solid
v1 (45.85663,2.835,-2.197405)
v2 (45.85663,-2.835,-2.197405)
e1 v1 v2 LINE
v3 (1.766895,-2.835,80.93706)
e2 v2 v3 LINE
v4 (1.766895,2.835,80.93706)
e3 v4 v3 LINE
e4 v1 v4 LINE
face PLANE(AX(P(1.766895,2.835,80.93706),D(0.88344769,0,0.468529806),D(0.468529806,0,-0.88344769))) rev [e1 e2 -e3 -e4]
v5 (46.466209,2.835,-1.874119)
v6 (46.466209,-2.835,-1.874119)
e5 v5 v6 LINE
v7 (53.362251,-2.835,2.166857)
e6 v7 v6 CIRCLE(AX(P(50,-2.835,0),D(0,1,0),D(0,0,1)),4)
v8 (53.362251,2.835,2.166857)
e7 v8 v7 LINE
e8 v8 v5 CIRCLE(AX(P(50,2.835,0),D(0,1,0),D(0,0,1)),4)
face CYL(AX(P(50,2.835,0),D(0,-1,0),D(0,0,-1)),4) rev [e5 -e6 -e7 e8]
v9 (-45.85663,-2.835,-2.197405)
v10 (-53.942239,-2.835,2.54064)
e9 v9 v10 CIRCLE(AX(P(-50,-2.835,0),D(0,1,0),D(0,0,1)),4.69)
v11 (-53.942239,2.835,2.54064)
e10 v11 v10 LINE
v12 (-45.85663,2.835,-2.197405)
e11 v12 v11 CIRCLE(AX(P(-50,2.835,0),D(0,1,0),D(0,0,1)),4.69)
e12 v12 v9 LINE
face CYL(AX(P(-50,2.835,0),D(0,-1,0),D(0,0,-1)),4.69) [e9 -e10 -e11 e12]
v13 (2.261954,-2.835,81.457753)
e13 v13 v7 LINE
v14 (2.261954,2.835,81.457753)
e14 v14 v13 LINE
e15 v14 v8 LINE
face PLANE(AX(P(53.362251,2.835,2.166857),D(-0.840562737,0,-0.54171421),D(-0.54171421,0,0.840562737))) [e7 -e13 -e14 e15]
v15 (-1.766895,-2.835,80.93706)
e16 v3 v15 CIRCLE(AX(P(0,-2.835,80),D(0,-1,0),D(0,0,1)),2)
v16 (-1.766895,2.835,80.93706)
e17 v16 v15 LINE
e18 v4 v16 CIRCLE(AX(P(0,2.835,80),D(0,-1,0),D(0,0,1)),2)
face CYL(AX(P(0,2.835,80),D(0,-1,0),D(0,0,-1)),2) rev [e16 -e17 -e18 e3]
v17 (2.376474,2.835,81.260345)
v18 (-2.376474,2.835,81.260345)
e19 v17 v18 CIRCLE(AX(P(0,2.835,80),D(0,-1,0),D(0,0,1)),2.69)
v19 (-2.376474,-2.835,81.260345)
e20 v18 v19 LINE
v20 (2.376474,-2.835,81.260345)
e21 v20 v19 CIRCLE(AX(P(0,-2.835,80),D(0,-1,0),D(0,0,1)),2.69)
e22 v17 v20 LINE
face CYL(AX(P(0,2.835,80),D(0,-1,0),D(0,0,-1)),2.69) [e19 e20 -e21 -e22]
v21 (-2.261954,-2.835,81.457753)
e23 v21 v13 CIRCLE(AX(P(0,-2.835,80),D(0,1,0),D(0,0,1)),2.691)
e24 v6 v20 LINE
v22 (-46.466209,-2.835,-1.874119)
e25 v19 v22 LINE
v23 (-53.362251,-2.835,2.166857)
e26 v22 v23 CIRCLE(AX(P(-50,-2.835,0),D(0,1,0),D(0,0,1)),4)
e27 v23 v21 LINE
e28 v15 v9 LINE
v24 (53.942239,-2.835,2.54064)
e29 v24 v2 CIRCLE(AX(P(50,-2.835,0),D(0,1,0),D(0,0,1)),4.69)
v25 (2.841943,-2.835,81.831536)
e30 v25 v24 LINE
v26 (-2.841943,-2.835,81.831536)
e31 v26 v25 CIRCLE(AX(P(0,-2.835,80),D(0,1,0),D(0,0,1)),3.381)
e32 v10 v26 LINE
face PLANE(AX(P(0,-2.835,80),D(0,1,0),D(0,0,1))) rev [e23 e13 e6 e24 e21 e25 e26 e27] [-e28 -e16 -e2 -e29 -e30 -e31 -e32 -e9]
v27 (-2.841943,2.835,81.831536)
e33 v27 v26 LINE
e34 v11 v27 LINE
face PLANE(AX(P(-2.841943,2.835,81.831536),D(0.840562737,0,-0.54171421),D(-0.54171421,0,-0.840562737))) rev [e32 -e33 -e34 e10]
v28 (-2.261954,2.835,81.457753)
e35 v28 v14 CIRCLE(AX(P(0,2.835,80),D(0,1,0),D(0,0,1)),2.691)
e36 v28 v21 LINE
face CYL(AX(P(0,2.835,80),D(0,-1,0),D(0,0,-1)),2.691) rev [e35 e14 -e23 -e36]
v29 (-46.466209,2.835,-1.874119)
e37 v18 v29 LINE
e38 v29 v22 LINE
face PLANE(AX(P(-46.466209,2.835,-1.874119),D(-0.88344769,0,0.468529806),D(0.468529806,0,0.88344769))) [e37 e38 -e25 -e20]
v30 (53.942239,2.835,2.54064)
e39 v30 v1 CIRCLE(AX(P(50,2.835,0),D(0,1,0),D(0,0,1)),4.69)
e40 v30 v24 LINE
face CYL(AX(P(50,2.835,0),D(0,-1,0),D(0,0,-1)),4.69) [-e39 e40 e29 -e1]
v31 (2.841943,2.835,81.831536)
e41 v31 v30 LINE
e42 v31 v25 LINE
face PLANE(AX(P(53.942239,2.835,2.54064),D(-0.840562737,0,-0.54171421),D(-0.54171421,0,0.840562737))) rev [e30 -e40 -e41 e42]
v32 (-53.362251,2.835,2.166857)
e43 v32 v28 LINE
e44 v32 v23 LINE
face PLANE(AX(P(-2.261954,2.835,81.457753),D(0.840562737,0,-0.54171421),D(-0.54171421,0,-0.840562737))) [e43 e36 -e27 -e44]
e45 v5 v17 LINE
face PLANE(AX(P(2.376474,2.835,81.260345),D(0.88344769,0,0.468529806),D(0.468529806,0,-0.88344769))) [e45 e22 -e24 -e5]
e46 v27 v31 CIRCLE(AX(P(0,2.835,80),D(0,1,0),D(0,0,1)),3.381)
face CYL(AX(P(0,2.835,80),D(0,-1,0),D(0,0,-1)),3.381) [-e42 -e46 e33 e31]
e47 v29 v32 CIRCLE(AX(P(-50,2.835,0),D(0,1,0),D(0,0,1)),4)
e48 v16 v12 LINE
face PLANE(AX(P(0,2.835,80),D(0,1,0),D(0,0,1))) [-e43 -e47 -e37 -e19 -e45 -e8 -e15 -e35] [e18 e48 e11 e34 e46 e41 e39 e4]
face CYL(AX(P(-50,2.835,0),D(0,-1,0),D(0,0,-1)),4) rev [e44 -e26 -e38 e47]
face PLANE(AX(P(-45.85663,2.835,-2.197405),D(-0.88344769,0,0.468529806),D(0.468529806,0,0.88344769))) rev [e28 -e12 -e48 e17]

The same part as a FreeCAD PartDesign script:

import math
import FreeCAD as App
import Part
import Sketcher

V = App.Vector
Q = App.Units.Quantity

doc = App.newDocument("Part")
params = doc.addObject("Spreadsheet::Sheet", "Params")
for row, (alias, value) in enumerate([
    ("sketch1_radius", "2 mm"),
    ("sketch1_radius2", "4 mm"),
    ("sketch1_radius3", "4.69 mm"),
    ("pad1_length", "5.67 mm"),
], start=1):
    params.set(f"A{row}", alias)
    params.set(f"B{row}", "=" + value)
    params.setAlias(f"B{row}", alias)

body = doc.addObject("PartDesign::Body", "Body")

# Sketch on XZ plane
sketch1 = body.newObject("Sketcher::SketchObject", "Sketch")
sketch1.AttachmentSupport = (doc.getObject("XZ_Plane"), [""])
sketch1.MapMode = "FlatFace"
sketch1.addGeometry(Part.LineSegment(V(-53.9, 2.5, 0), V(-2.8, 81.8, 0)), False)
sketch1.addGeometry(Part.ArcOfCircle(Part.Circle(V(0, 80, 0), V(0, 0, 1), 3.4), math.radians(33), math.radians(147)), False)
sketch1.addGeometry(Part.LineSegment(V(2.8, 81.8, 0), V(53.9, 2.5, 0)), False)
sketch1.addGeometry(Part.ArcOfCircle(Part.Circle(V(50, 0, 0), V(0, 0, 1), 4.7), math.radians(-152), math.radians(33)), False)
sketch1.addGeometry(Part.LineSegment(V(45.9, -2.2, 0), V(1.8, 80.9, 0)), False)
sketch1.addGeometry(Part.ArcOfCircle(Part.Circle(V(0, 80, 0), V(0, 0, 1), 2), math.radians(28), math.radians(152)), False)
sketch1.addGeometry(Part.LineSegment(V(-1.8, 80.9, 0), V(-45.9, -2.2, 0)), False)
sketch1.addGeometry(Part.ArcOfCircle(Part.Circle(V(-50, 0, 0), V(0, 0, 1), 4.7), math.radians(147), math.radians(332)), False)
sketch1.addGeometry(Part.LineSegment(V(-2.3, 81.5, 0), V(-53.4, 2.2, 0)), False)
sketch1.addGeometry(Part.ArcOfCircle(Part.Circle(V(-50, 0, 0), V(0, 0, 1), 4), math.radians(147), math.radians(332)), False)
sketch1.addGeometry(Part.LineSegment(V(-46.5, -1.9, 0), V(-2.4, 81.3, 0)), False)
sketch1.addGeometry(Part.ArcOfCircle(Part.Circle(V(0, 80, 0), V(0, 0, 1), 2.7), math.radians(28), math.radians(152)), False)
sketch1.addGeometry(Part.LineSegment(V(2.4, 81.3, 0), V(46.5, -1.9, 0)), False)
sketch1.addGeometry(Part.ArcOfCircle(Part.Circle(V(50, 0, 0), V(0, 0, 1), 4), math.radians(-152), math.radians(33)), False)
sketch1.addGeometry(Part.LineSegment(V(53.4, 2.2, 0), V(2.3, 81.5, 0)), False)
sketch1.addGeometry(Part.ArcOfCircle(Part.Circle(V(0, 80, 0), V(0, 0, 1), 2.7), math.radians(33), math.radians(147)), False)
sketch1.addConstraint(Sketcher.Constraint("Tangent", 0, 2, 1, 2))
sketch1.addConstraint(Sketcher.Constraint("Tangent", 1, 1, 2, 1))
sketch1.addConstraint(Sketcher.Constraint("Tangent", 2, 2, 3, 2))
sketch1.addConstraint(Sketcher.Constraint("Tangent", 3, 1, 4, 1))
sketch1.addConstraint(Sketcher.Constraint("Tangent", 4, 2, 5, 1))
sketch1.addConstraint(Sketcher.Constraint("Tangent", 5, 2, 6, 1))
sketch1.addConstraint(Sketcher.Constraint("Tangent", 6, 2, 7, 2))
sketch1.addConstraint(Sketcher.Constraint("Tangent", 7, 1, 0, 1))
sketch1.addConstraint(Sketcher.Constraint("Tangent", 8, 2, 9, 1))
sketch1.addConstraint(Sketcher.Constraint("Tangent", 9, 2, 10, 1))
sketch1.addConstraint(Sketcher.Constraint("Tangent", 10, 2, 11, 2))
sketch1.addConstraint(Sketcher.Constraint("Tangent", 11, 1, 12, 1))
sketch1.addConstraint(Sketcher.Constraint("Tangent", 12, 2, 13, 1))
sketch1.addConstraint(Sketcher.Constraint("Tangent", 13, 2, 14, 1))
sketch1.addConstraint(Sketcher.Constraint("Tangent", 14, 2, 15, 1))
sketch1.addConstraint(Sketcher.Constraint("Tangent", 15, 2, 8, 1))
sketch1.addConstraint(Sketcher.Constraint("Coincident", 5, 3, 1, 3))
sketch1.addConstraint(Sketcher.Constraint("Coincident", 9, 3, 7, 3))
sketch1.addConstraint(Sketcher.Constraint("Coincident", 11, 3, 1, 3))
sketch1.addConstraint(Sketcher.Constraint("Coincident", 13, 3, 3, 3))
sketch1.addConstraint(Sketcher.Constraint("Coincident", 15, 3, 1, 3))
sketch1.addConstraint(Sketcher.Constraint("Equal", 3, 7))
sketch1.addConstraint(Sketcher.Constraint("Equal", 9, 13))
sketch1.addConstraint(Sketcher.Constraint("Symmetric", 3, 3, 7, 3, -1, 1))
sketch1.addConstraint(Sketcher.Constraint("Symmetric", 0, 2, 1, 1, -2))
sketch1.addConstraint(Sketcher.Constraint("Parallel", 0, 8))
sketch1.addConstraint(Sketcher.Constraint("Parallel", 6, 10))
sketch1.addConstraint(Sketcher.Constraint("Radius", 5, Q("2 mm")))
sketch1.addConstraint(Sketcher.Constraint("Radius", 9, Q("4 mm")))
sketch1.addConstraint(Sketcher.Constraint("Radius", 3, Q("4.69 mm")))
sketch1.addConstraint(Sketcher.Constraint("DistanceY", -1, 1, 1, 3, Q("80 mm")))
sketch1.addConstraint(Sketcher.Constraint("DistanceX", -1, 1, 3, 3, Q("50 mm")))
sketch1.addConstraint(Sketcher.Constraint("Radius", 1, Q("3.381 mm")))
sketch1.setExpression("Constraints[27]", "Params.sketch1_radius")
sketch1.setExpression("Constraints[28]", "Params.sketch1_radius2")
sketch1.setExpression("Constraints[29]", "Params.sketch1_radius3")
pad1 = body.newObject("PartDesign::Pad", "Pad")
pad1.Profile = sketch1
pad1.setExpression("Length", "Params.pad1_length")
pad1.Midplane = True

doc.recompute()
